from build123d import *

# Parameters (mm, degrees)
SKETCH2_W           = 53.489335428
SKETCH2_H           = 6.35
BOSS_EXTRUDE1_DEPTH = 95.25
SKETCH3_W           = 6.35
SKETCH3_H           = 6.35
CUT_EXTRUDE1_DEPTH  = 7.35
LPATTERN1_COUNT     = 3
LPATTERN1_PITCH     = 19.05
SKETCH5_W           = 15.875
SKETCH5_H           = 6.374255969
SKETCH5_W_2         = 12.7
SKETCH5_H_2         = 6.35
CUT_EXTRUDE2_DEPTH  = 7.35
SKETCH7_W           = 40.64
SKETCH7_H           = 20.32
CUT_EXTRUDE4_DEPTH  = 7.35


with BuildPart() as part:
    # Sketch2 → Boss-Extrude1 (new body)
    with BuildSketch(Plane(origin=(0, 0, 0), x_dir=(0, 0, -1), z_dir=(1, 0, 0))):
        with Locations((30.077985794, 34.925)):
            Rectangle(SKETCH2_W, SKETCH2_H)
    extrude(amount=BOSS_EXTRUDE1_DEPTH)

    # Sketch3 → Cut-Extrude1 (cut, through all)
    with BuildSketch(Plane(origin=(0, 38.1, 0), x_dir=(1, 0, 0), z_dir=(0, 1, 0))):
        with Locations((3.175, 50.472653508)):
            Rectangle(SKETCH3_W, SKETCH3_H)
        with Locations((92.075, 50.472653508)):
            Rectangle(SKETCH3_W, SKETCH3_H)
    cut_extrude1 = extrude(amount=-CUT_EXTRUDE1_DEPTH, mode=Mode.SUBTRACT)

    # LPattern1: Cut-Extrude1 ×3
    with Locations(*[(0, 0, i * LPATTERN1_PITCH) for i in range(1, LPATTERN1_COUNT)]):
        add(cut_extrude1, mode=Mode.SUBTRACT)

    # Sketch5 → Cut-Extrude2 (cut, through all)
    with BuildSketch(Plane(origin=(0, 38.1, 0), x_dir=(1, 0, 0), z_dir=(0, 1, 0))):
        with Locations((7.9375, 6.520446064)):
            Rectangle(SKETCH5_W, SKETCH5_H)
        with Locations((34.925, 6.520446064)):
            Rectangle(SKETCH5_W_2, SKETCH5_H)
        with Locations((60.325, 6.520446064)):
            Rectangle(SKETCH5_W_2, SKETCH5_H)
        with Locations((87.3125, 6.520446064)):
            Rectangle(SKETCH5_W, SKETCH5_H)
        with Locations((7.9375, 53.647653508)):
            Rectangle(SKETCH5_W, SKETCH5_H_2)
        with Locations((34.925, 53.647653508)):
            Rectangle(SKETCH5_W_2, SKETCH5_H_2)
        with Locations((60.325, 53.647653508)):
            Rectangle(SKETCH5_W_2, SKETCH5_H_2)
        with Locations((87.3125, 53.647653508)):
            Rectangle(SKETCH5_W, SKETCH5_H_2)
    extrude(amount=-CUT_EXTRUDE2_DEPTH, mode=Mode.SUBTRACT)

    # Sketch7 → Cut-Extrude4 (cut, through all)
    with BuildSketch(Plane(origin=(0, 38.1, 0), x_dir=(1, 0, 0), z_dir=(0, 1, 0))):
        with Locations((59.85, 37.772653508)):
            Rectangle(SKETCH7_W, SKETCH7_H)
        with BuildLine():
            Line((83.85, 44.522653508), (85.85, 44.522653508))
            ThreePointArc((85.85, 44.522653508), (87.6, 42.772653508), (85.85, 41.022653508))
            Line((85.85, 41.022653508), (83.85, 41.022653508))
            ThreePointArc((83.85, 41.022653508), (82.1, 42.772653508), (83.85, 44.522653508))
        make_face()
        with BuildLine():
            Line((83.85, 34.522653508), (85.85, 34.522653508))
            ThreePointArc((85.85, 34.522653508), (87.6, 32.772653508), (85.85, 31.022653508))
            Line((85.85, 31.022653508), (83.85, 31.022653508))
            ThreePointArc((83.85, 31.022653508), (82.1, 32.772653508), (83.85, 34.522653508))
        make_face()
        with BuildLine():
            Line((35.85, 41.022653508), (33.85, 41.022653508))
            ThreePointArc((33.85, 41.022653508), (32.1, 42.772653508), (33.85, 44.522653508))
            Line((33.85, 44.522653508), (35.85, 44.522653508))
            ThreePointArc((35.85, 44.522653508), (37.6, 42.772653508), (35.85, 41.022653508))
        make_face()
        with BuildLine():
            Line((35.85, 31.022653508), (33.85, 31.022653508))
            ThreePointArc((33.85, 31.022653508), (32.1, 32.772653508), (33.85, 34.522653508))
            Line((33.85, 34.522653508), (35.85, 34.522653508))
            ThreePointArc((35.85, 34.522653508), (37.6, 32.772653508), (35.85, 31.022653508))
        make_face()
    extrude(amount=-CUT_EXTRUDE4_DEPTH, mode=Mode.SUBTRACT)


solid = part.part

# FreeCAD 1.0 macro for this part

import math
import FreeCAD as App
import Part
import Sketcher
from FreeCAD import Vector
Q = App.Units.Quantity

doc = App.newDocument("Part")
params = doc.addObject("Spreadsheet::Sheet", "Params")
for row, (alias, value) in enumerate([
    ("sketch1_width", "0.25 in"),
    ("pad1_length", "3.75 in"),
    ("sketch2_width", "0.25 in"),
    ("linearpattern_pitch", "0.75 in"),
    ("sketch3_width", "0.5 in"),
    ("sketch3_height", "0.25 in"),
    ("sketch3_width2", "0.625 in"),
    ("sketch4_width", "1.6 in"),
    ("sketch4_height", "0.8 in"),
], start=1):
    params.set(f"A{row}", alias)
    params.set(f"B{row}", "=" + value)
    params.setAlias(f"B{row}", alias)

body = doc.addObject("PartDesign::Body", "Body")

sketch1 = body.newObject("Sketcher::SketchObject", "Sketch")
sketch1.AttachmentSupport = (doc.getObject("YZ_Plane"), [""])
sketch1.MapMode = "FlatFace"
sketch1.addGeometry([
    Part.LineSegment(Vector(38.1, -3.333318, 0), Vector(31.75, -3.333318, 0)),
    Part.LineSegment(Vector(31.75, -3.333318, 0), Vector(31.75, -56.822654, 0)),
    Part.LineSegment(Vector(31.75, -56.822654, 0), Vector(38.1, -56.822654, 0)),
    Part.LineSegment(Vector(38.1, -56.822654, 0), Vector(38.1, -3.333318, 0)),
], False)
sketch1.addConstraint([
    Sketcher.Constraint("Coincident", 0, 2, 1, 1),
    Sketcher.Constraint("Coincident", 1, 2, 2, 1),
    Sketcher.Constraint("Coincident", 2, 2, 3, 1),
    Sketcher.Constraint("Coincident", 3, 2, 0, 1),
    Sketcher.Constraint("Horizontal", 0),
    Sketcher.Constraint("Vertical", 1),
    Sketcher.Constraint("Horizontal", 2),
    Sketcher.Constraint("Vertical", 3),
    Sketcher.Constraint("DistanceX", 0, 2, 0, 1, Q("0.25 in")),
    Sketcher.Constraint("DistanceX", -1, 1, 2, 2, Q("1.5 in")),
    Sketcher.Constraint("DistanceY", 1, 2, 1, 1, Q("53.489335 mm")),
    Sketcher.Constraint("DistanceY", 0, 2, -1, 1, Q("3.333318 mm")),
])
sketch1.setExpression("Constraints[8]", "Params.sketch1_width")
pad1 = body.newObject("PartDesign::Pad", "Pad")
pad1.Profile = sketch1
pad1.setExpression("Length", "Params.pad1_length")

sketch2 = body.newObject("Sketcher::SketchObject", "Sketch001")
sketch2.AttachmentSupport = (doc.getObject("XZ_Plane"), [""])
sketch2.MapMode = "FlatFace"
sketch2.AttachmentOffset = App.Placement(Vector(0, 0, -1.5 * 25.4), App.Rotation())
sketch2.addGeometry([
    Part.LineSegment(Vector(0, -53.647654, 0), Vector(0, -47.297654, 0)),
    Part.LineSegment(Vector(0, -47.297654, 0), Vector(6.35, -47.297654, 0)),
    Part.LineSegment(Vector(6.35, -47.297654, 0), Vector(6.35, -53.647654, 0)),
    Part.LineSegment(Vector(6.35, -53.647654, 0), Vector(0, -53.647654, 0)),
    Part.LineSegment(Vector(88.9, -53.647654, 0), Vector(88.9, -47.297654, 0)),
    Part.LineSegment(Vector(88.9, -47.297654, 0), Vector(95.25, -47.297654, 0)),
    Part.LineSegment(Vector(95.25, -47.297654, 0), Vector(95.25, -53.647654, 0)),
    Part.LineSegment(Vector(95.25, -53.647654, 0), Vector(88.9, -53.647654, 0)),
], False)
sketch2.addConstraint([
    Sketcher.Constraint("Coincident", 0, 2, 1, 1),
    Sketcher.Constraint("Coincident", 1, 2, 2, 1),
    Sketcher.Constraint("Coincident", 2, 2, 3, 1),
    Sketcher.Constraint("Coincident", 3, 2, 0, 1),
    Sketcher.Constraint("Coincident", 4, 2, 5, 1),
    Sketcher.Constraint("Coincident", 5, 2, 6, 1),
    Sketcher.Constraint("Coincident", 6, 2, 7, 1),
    Sketcher.Constraint("Coincident", 7, 2, 4, 1),
    Sketcher.Constraint("Vertical", 0),
    Sketcher.Constraint("Horizontal", 1),
    Sketcher.Constraint("Vertical", 2),
    Sketcher.Constraint("Horizontal", 3),
    Sketcher.Constraint("Vertical", 4),
    Sketcher.Constraint("Horizontal", 5),
    Sketcher.Constraint("Vertical", 6),
    Sketcher.Constraint("Horizontal", 7),
    Sketcher.Constraint("PointOnObject", 0, 2, -2),
    Sketcher.Constraint("Horizontal", 1, 2, 4, 2),
    Sketcher.Constraint("Horizontal", 3, 2, 6, 2),
    Sketcher.Constraint("Equal", 3, 5),
    Sketcher.Constraint("Equal", 7, 0),
    Sketcher.Constraint("DistanceX", 1, 1, 1, 2, Q("0.25 in")),
    Sketcher.Constraint("DistanceX", -1, 1, 4, 2, Q("3.5 in")),
    Sketcher.Constraint("DistanceY", 0, 2, -1, 1, Q("47.297654 mm")),
])
sketch2.setExpression("Constraints[21]", "Params.sketch2_width")
pocket1 = body.newObject("PartDesign::Pocket", "Pocket")
pocket1.Profile = sketch2
pocket1.Type = "ThroughAll"
pocket1.Reversed = True
doc.recompute()

linearpattern = body.newObject("PartDesign::LinearPattern", "LinearPattern")
linearpattern.Originals = [pocket1]
linearpattern.Direction = (doc.getObject("Z_Axis"), [""])
linearpattern.Mode = "offset"
linearpattern.setExpression("Offset", "Params.linearpattern_pitch")
linearpattern.Occurrences = 3
body.Tip = linearpattern

sketch3 = body.newObject("Sketcher::SketchObject", "Sketch002")
sketch3.AttachmentSupport = (doc.getObject("XZ_Plane"), [""])
sketch3.MapMode = "FlatFace"
sketch3.AttachmentOffset = App.Placement(Vector(0, 0, -1.5 * 25.4), App.Rotation())
sketch3.addGeometry([
    Part.LineSegment(Vector(0, -9.707574, 0), Vector(0, -3.333318, 0)),
    Part.LineSegment(Vector(0, -3.333318, 0), Vector(15.875, -3.333318, 0)),
    Part.LineSegment(Vector(15.875, -3.333318, 0), Vector(15.875, -9.707574, 0)),
    Part.LineSegment(Vector(15.875, -9.707574, 0), Vector(0, -9.707574, 0)),
    Part.LineSegment(Vector(28.575, -9.707574, 0), Vector(28.575, -3.333318, 0)),
    Part.LineSegment(Vector(28.575, -3.333318, 0), Vector(41.275, -3.333318, 0)),
    Part.LineSegment(Vector(41.275, -3.333318, 0), Vector(41.275, -9.707574, 0)),
    Part.LineSegment(Vector(41.275, -9.707574, 0), Vector(28.575, -9.707574, 0)),
    Part.LineSegment(Vector(53.975, -9.707574, 0), Vector(53.975, -3.333318, 0)),
    Part.LineSegment(Vector(53.975, -3.333318, 0), Vector(66.675, -3.333318, 0)),
    Part.LineSegment(Vector(66.675, -3.333318, 0), Vector(66.675, -9.707574, 0)),
    Part.LineSegment(Vector(66.675, -9.707574, 0), Vector(53.975, -9.707574, 0)),
    Part.LineSegment(Vector(79.375, -9.707574, 0), Vector(79.375, -3.333318, 0)),
    Part.LineSegment(Vector(79.375, -3.333318, 0), Vector(95.25, -3.333318, 0)),
    Part.LineSegment(Vector(95.25, -3.333318, 0), Vector(95.25, -9.707574, 0)),
    Part.LineSegment(Vector(95.25, -9.707574, 0), Vector(79.375, -9.707574, 0)),
    Part.LineSegment(Vector(0, -56.822654, 0), Vector(0, -50.472654, 0)),
    Part.LineSegment(Vector(0, -50.472654, 0), Vector(15.875, -50.472654, 0)),
    Part.LineSegment(Vector(15.875, -50.472654, 0), Vector(15.875, -56.822654, 0)),
    Part.LineSegment(Vector(15.875, -56.822654, 0), Vector(0, -56.822654, 0)),
    Part.LineSegment(Vector(28.575, -56.822654, 0), Vector(28.575, -50.472654, 0)),
    Part.LineSegment(Vector(28.575, -50.472654, 0), Vector(41.275, -50.472654, 0)),
    Part.LineSegment(Vector(41.275, -50.472654, 0), Vector(41.275, -56.822654, 0)),
    Part.LineSegment(Vector(41.275, -56.822654, 0), Vector(28.575, -56.822654, 0)),
    Part.LineSegment(Vector(53.975, -56.822654, 0), Vector(53.975, -50.472654, 0)),
    Part.LineSegment(Vector(53.975, -50.472654, 0), Vector(66.675, -50.472654, 0)),
    Part.LineSegment(Vector(66.675, -50.472654, 0), Vector(66.675, -56.822654, 0)),
    Part.LineSegment(Vector(66.675, -56.822654, 0), Vector(53.975, -56.822654, 0)),
    Part.LineSegment(Vector(79.375, -56.822654, 0), Vector(79.375, -50.472654, 0)),
    Part.LineSegment(Vector(79.375, -50.472654, 0), Vector(95.25, -50.472654, 0)),
    Part.LineSegment(Vector(95.25, -50.472654, 0), Vector(95.25, -56.822654, 0)),
    Part.LineSegment(Vector(95.25, -56.822654, 0), Vector(79.375, -56.822654, 0)),
], False)
sketch3.addConstraint([
    Sketcher.Constraint("Coincident", 0, 2, 1, 1),
    Sketcher.Constraint("Coincident", 1, 2, 2, 1),
    Sketcher.Constraint("Coincident", 2, 2, 3, 1),
    Sketcher.Constraint("Coincident", 3, 2, 0, 1),
    Sketcher.Constraint("Coincident", 4, 2, 5, 1),
    Sketcher.Constraint("Coincident", 5, 2, 6, 1),
    Sketcher.Constraint("Coincident", 6, 2, 7, 1),
    Sketcher.Constraint("Coincident", 7, 2, 4, 1),
    Sketcher.Constraint("Coincident", 8, 2, 9, 1),
    Sketcher.Constraint("Coincident", 9, 2, 10, 1),
    Sketcher.Constraint("Coincident", 10, 2, 11, 1),
    Sketcher.Constraint("Coincident", 11, 2, 8, 1),
    Sketcher.Constraint("Coincident", 12, 2, 13, 1),
    Sketcher.Constraint("Coincident", 13, 2, 14, 1),
    Sketcher.Constraint("Coincident", 14, 2, 15, 1),
    Sketcher.Constraint("Coincident", 15, 2, 12, 1),
    Sketcher.Constraint("Coincident", 16, 2, 17, 1),
    Sketcher.Constraint("Coincident", 17, 2, 18, 1),
    Sketcher.Constraint("Coincident", 18, 2, 19, 1),
    Sketcher.Constraint("Coincident", 19, 2, 16, 1),
    Sketcher.Constraint("Coincident", 20, 2, 21, 1),
    Sketcher.Constraint("Coincident", 21, 2, 22, 1),
    Sketcher.Constraint("Coincident", 22, 2, 23, 1),
    Sketcher.Constraint("Coincident", 23, 2, 20, 1),
    Sketcher.Constraint("Coincident", 24, 2, 25, 1),
    Sketcher.Constraint("Coincident", 25, 2, 26, 1),
    Sketcher.Constraint("Coincident", 26, 2, 27, 1),
    Sketcher.Constraint("Coincident", 27, 2, 24, 1),
    Sketcher.Constraint("Coincident", 28, 2, 29, 1),
    Sketcher.Constraint("Coincident", 29, 2, 30, 1),
    Sketcher.Constraint("Coincident", 30, 2, 31, 1),
    Sketcher.Constraint("Coincident", 31, 2, 28, 1),
    Sketcher.Constraint("Vertical", 0),
    Sketcher.Constraint("Horizontal", 1),
    Sketcher.Constraint("Vertical", 2),
    Sketcher.Constraint("Horizontal", 3),
    Sketcher.Constraint("Vertical", 4),
    Sketcher.Constraint("Horizontal", 5),
    Sketcher.Constraint("Vertical", 6),
    Sketcher.Constraint("Horizontal", 7),
    Sketcher.Constraint("Vertical", 8),
    Sketcher.Constraint("Horizontal", 9),
    Sketcher.Constraint("Vertical", 10),
    Sketcher.Constraint("Horizontal", 11),
    Sketcher.Constraint("Vertical", 12),
    Sketcher.Constraint("Horizontal", 13),
    Sketcher.Constraint("Vertical", 14),
    Sketcher.Constraint("Horizontal", 15),
    Sketcher.Constraint("Vertical", 16),
    Sketcher.Constraint("Horizontal", 17),
    Sketcher.Constraint("Vertical", 18),
    Sketcher.Constraint("Horizontal", 19),
    Sketcher.Constraint("Vertical", 20),
    Sketcher.Constraint("Horizontal", 21),
    Sketcher.Constraint("Vertical", 22),
    Sketcher.Constraint("Horizontal", 23),
    Sketcher.Constraint("Vertical", 24),
    Sketcher.Constraint("Horizontal", 25),
    Sketcher.Constraint("Vertical", 26),
    Sketcher.Constraint("Horizontal", 27),
    Sketcher.Constraint("Vertical", 28),
    Sketcher.Constraint("Horizontal", 29),
    Sketcher.Constraint("Vertical", 30),
    Sketcher.Constraint("Horizontal", 31),
    Sketcher.Constraint("PointOnObject", 0, 2, -2),
    Sketcher.Constraint("PointOnObject", 16, 2, -2),
    Sketcher.Constraint("Horizontal", 1, 2, 4, 2),
    Sketcher.Constraint("Horizontal", 3, 2, 6, 2),
    Sketcher.Constraint("Horizontal", 5, 2, 8, 2),
    Sketcher.Constraint("Horizontal", 7, 2, 10, 2),
    Sketcher.Constraint("Horizontal", 9, 2, 12, 2),
    Sketcher.Constraint("Horizontal", 11, 2, 14, 2),
    Sketcher.Constraint("Horizontal", 17, 2, 20, 2),
    Sketcher.Constraint("Horizontal", 19, 2, 22, 2),
    Sketcher.Constraint("Horizontal", 21, 2, 24, 2),
    Sketcher.Constraint("Horizontal", 23, 2, 26, 2),
    Sketcher.Constraint("Horizontal", 25, 2, 28, 2),
    Sketcher.Constraint("Horizontal", 27, 2, 30, 2),
    Sketcher.Constraint("Vertical", 2, 2, 17, 2),
    Sketcher.Constraint("Vertical", 7, 2, 20, 2),
    Sketcher.Constraint("Vertical", 6, 2, 21, 2),
    Sketcher.Constraint("Vertical", 11, 2, 24, 2),
    Sketcher.Constraint("Vertical", 10, 2, 25, 2),
    Sketcher.Constraint("Vertical", 15, 2, 28, 2),
    Sketcher.Constraint("Vertical", 14, 2, 29, 2),
    Sketcher.Constraint("Equal", 7, 9),
    Sketcher.Constraint("Equal", 3, 13),
    Sketcher.Constraint("DistanceX", 5, 1, 5, 2, Q("0.5 in")),
    Sketcher.Constraint("DistanceX", 1, 2, 5, 2, Q("1 in")),
    Sketcher.Constraint("DistanceX", 4, 2, 8, 2, Q("1 in")),
    Sketcher.Constraint("DistanceX", 8, 2, 12, 2, Q("1 in")),
    Sketcher.Constraint("DistanceY", 16, 1, 16, 2, Q("0.25 in")),
    Sketcher.Constraint("DistanceX", 1, 1, 1, 2, Q("0.625 in")),
    Sketcher.Constraint("DistanceY", 0, 1, 0, 2, Q("6.374256 mm")),
    Sketcher.Constraint("DistanceY", 0, 2, -1, 1, Q("3.333318 mm")),
    Sketcher.Constraint("DistanceY", 16, 2, 3, 2, Q("40.765079 mm")),
])
sketch3.setExpression("Constraints[87]", "Params.sketch3_width")
sketch3.setExpression("Constraints[91]", "Params.sketch3_height")
sketch3.setExpression("Constraints[92]", "Params.sketch3_width2")
pocket2 = body.newObject("PartDesign::Pocket", "Pocket001")
pocket2.Profile = sketch3
pocket2.Type = "ThroughAll"
pocket2.Reversed = True

sketch4 = body.newObject("Sketcher::SketchObject", "Sketch003")
sketch4.AttachmentSupport = (doc.getObject("XZ_Plane"), [""])
sketch4.MapMode = "FlatFace"
sketch4.AttachmentOffset = App.Placement(Vector(0, 0, -1.5 * 25.4), App.Rotation())
sketch4.addGeometry([
    Part.LineSegment(Vector(39.53, -47.932654, 0), Vector(39.53, -27.612654, 0)),
    Part.LineSegment(Vector(39.53, -27.612654, 0), Vector(80.17, -27.612654, 0)),
    Part.LineSegment(Vector(80.17, -27.612654, 0), Vector(80.17, -47.932654, 0)),
    Part.LineSegment(Vector(80.17, -47.932654, 0), Vector(39.53, -47.932654, 0)),
    Part.LineSegment(Vector(85.85, -44.522654, 0), Vector(83.85, -44.522654, 0)),
    Part.ArcOfCircle(Part.Circle(Vector(83.85, -42.772654, 0), Vector(0, 0, 1), 1.75), math.radians(90), math.radians(270)),
    Part.LineSegment(Vector(83.85, -41.022654, 0), Vector(85.85, -41.022654, 0)),
    Part.ArcOfCircle(Part.Circle(Vector(85.85, -42.772654, 0), Vector(0, 0, 1), 1.75), math.radians(-90), math.radians(90)),
    Part.LineSegment(Vector(85.85, -34.522654, 0), Vector(83.85, -34.522654, 0)),
    Part.ArcOfCircle(Part.Circle(Vector(83.85, -32.772654, 0), Vector(0, 0, 1), 1.75), math.radians(90), math.radians(270)),
    Part.LineSegment(Vector(83.85, -31.022654, 0), Vector(85.85, -31.022654, 0)),
    Part.ArcOfCircle(Part.Circle(Vector(85.85, -32.772654, 0), Vector(0, 0, 1), 1.75), math.radians(-90), math.radians(90)),
    Part.LineSegment(Vector(33.85, -41.022654, 0), Vector(35.85, -41.022654, 0)),
    Part.ArcOfCircle(Part.Circle(Vector(35.85, -42.772654, 0), Vector(0, 0, 1), 1.75), math.radians(-90), math.radians(90)),
    Part.LineSegment(Vector(35.85, -44.522654, 0), Vector(33.85, -44.522654, 0)),
    Part.ArcOfCircle(Part.Circle(Vector(33.85, -42.772654, 0), Vector(0, 0, 1), 1.75), math.radians(90), math.radians(270)),
    Part.LineSegment(Vector(33.85, -31.022654, 0), Vector(35.85, -31.022654, 0)),
    Part.ArcOfCircle(Part.Circle(Vector(35.85, -32.772654, 0), Vector(0, 0, 1), 1.75), math.radians(-90), math.radians(90)),
    Part.LineSegment(Vector(35.85, -34.522654, 0), Vector(33.85, -34.522654, 0)),
    Part.ArcOfCircle(Part.Circle(Vector(33.85, -32.772654, 0), Vector(0, 0, 1), 1.75), math.radians(90), math.radians(270)),
], False)
sketch4.addConstraint([
    Sketcher.Constraint("Coincident", 0, 2, 1, 1),
    Sketcher.Constraint("Coincident", 1, 2, 2, 1),
    Sketcher.Constraint("Coincident", 2, 2, 3, 1),
    Sketcher.Constraint("Coincident", 3, 2, 0, 1),
    Sketcher.Constraint("Tangent", 4, 2, 5, 2),
    Sketcher.Constraint("Tangent", 5, 1, 6, 1),
    Sketcher.Constraint("Tangent", 6, 2, 7, 2),
    Sketcher.Constraint("Tangent", 7, 1, 4, 1),
    Sketcher.Constraint("Tangent", 8, 2, 9, 2),
    Sketcher.Constraint("Tangent", 9, 1, 10, 1),
    Sketcher.Constraint("Tangent", 10, 2, 11, 2),
    Sketcher.Constraint("Tangent", 11, 1, 8, 1),
    Sketcher.Constraint("Tangent", 12, 2, 13, 2),
    Sketcher.Constraint("Tangent", 13, 1, 14, 1),
    Sketcher.Constraint("Tangent", 14, 2, 15, 2),
    Sketcher.Constraint("Tangent", 15, 1, 12, 1),
    Sketcher.Constraint("Tangent", 16, 2, 17, 2),
    Sketcher.Constraint("Tangent", 17, 1, 18, 1),
    Sketcher.Constraint("Tangent", 18, 2, 19, 2),
    Sketcher.Constraint("Tangent", 19, 1, 16, 1),
    Sketcher.Constraint("Vertical", 0),
    Sketcher.Constraint("Horizontal", 1),
    Sketcher.Constraint("Vertical", 2),
    Sketcher.Constraint("Horizontal", 3),
    Sketcher.Constraint("Horizontal", 4),
    Sketcher.Constraint("Horizontal", 6),
    Sketcher.Constraint("Horizontal", 8),
    Sketcher.Constraint("Horizontal", 10),
    Sketcher.Constraint("Horizontal", 12),
    Sketcher.Constraint("Horizontal", 14),
    Sketcher.Constraint("Horizontal", 16),
    Sketcher.Constraint("Horizontal", 18),
    Sketcher.Constraint("Equal", 7, 9),
    Sketcher.Constraint("Equal", 11, 13),
    Sketcher.Constraint("Equal", 15, 17),
    Sketcher.Constraint("Horizontal", 7, 3, 13, 3),
    Sketcher.Constraint("Horizontal", 11, 3, 17, 3),
    Sketcher.Constraint("Vertical", 5, 3, 9, 3),
    Sketcher.Constraint("Vertical", 7, 3, 11, 3),
    Sketcher.Constraint("Vertical", 13, 3, 17, 3),
    Sketcher.Constraint("Vertical", 15, 3, 19, 3),
    Sketcher.Constraint("Equal", 10, 12),
    Sketcher.Constraint("DistanceX", 1, 1, 1, 2, Q("1.6 in")),
    Sketcher.Constraint("DistanceY", 0, 1, 0, 2, Q("0.8 in")),
    Sketcher.Constraint("Radius", 5, Q("1.75 mm")),
    Sketcher.Constraint("DistanceX", 4, 2, 4, 1, Q("2 mm")),
    Sketcher.Constraint("DistanceX", -1, 1, 5, 3, Q("83.85 mm")),
    Sketcher.Constraint("DistanceX", -1, 1, 13, 3, Q("35.85 mm")),
    Sketcher.Constraint("DistanceX", -1, 1, 0, 2, Q("39.53 mm")),
    Sketcher.Constraint("DistanceY", 5, 3, 9, 3, Q("10 mm")),
    Sketcher.Constraint("DistanceY", 17, 3, 0, 2, Q("5.16 mm")),
    Sketcher.Constraint("DistanceY", 5, 3, -1, 1, Q("42.772654 mm")),
])
sketch4.setExpression("Constraints[42]", "Params.sketch4_width")
sketch4.setExpression("Constraints[43]", "Params.sketch4_height")
pocket3 = body.newObject("PartDesign::Pocket", "Pocket002")
pocket3.Profile = sketch4
pocket3.Type = "ThroughAll"
pocket3.Reversed = True

doc.recompute()
